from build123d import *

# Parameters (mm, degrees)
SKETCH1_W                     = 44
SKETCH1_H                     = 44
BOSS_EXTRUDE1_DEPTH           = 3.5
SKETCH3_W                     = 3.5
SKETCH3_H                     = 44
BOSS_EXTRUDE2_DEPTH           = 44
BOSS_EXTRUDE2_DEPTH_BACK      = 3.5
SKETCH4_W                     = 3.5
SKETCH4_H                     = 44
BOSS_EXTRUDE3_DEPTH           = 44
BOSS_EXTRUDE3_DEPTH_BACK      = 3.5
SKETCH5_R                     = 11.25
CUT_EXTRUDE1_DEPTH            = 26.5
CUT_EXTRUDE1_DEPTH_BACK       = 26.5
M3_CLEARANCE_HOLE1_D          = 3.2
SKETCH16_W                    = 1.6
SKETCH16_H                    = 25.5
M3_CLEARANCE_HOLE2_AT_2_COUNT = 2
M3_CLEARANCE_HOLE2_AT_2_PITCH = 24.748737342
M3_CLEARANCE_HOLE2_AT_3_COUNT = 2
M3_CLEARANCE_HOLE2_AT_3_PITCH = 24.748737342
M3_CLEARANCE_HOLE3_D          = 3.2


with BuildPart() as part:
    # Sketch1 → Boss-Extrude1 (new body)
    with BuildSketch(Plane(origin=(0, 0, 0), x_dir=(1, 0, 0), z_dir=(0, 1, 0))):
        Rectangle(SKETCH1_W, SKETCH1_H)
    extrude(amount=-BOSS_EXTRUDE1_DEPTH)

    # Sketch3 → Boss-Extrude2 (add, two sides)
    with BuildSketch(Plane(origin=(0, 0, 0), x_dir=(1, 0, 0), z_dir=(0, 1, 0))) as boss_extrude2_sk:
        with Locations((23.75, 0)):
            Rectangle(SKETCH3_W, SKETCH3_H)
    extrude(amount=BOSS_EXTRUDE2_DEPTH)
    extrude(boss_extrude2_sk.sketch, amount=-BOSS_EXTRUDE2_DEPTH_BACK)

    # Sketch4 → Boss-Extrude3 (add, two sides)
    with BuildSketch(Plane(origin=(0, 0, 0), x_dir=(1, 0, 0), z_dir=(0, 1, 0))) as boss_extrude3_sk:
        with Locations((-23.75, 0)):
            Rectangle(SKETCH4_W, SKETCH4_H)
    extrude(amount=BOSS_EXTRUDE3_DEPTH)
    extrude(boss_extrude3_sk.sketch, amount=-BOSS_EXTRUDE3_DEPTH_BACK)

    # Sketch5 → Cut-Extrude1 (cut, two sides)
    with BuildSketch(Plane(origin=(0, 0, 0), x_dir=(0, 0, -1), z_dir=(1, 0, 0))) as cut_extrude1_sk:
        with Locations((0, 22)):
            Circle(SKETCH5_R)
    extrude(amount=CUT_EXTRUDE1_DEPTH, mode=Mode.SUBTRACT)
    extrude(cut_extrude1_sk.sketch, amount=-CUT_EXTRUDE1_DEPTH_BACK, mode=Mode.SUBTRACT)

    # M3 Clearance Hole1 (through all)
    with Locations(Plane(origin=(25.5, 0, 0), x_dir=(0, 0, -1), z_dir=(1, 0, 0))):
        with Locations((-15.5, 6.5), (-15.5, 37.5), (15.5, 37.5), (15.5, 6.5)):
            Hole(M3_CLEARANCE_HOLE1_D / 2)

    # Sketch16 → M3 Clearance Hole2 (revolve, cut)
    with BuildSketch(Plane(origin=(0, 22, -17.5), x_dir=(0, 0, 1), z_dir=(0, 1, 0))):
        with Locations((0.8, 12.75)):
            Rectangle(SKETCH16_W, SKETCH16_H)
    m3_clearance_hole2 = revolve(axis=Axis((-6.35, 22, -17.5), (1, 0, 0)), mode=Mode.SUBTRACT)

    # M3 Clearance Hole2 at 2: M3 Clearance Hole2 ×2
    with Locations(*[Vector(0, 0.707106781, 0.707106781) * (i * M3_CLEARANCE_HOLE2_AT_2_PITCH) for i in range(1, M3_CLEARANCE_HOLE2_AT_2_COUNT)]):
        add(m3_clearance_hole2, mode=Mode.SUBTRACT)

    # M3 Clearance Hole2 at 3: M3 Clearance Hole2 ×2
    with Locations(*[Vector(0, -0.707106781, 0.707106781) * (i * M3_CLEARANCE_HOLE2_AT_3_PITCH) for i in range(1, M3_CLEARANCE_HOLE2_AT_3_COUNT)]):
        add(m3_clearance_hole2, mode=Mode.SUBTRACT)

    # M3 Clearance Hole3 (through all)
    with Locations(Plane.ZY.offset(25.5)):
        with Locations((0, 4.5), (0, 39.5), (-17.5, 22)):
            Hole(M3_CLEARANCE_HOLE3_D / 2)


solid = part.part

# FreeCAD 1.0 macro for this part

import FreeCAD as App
import Part
import Sketcher
from FreeCAD import Vector

doc = App.newDocument("Part")
body = doc.addObject("PartDesign::Body", "Body")

# Sketch on XZ plane
sketch1 = doc.addObject("Sketcher::SketchObject", "Sketch")
body.addObject(sketch1)
sketch1.AttachmentSupport = (doc.XZ_Plane, [""])
sketch1.MapMode = "FlatFace"
sketch1.addGeometry([
    Part.LineSegment(Vector(-22, -22, 0), Vector(-22, 22, 0)),
    Part.LineSegment(Vector(-22, 22, 0), Vector(22, 22, 0)),
    Part.LineSegment(Vector(22, 22, 0), Vector(22, -22, 0)),
    Part.LineSegment(Vector(22, -22, 0), Vector(-22, -22, 0)),
], False)
sketch1.addConstraint([
    Sketcher.Constraint("Coincident", 0, 2, 1, 1),
    Sketcher.Constraint("Coincident", 1, 2, 2, 1),
    Sketcher.Constraint("Coincident", 2, 2, 3, 1),
    Sketcher.Constraint("Coincident", 3, 2, 0, 1),
    Sketcher.Constraint("Vertical", 0),
    Sketcher.Constraint("Horizontal", 1),
    Sketcher.Constraint("Vertical", 2),
    Sketcher.Constraint("Horizontal", 3),
    Sketcher.Constraint("Symmetric", 0, 2, 2, 2, -1, 1),
    Sketcher.Constraint("Equal", 3, 0),
    Sketcher.Constraint("DistanceX", 1, 1, 1, 2, 44.0),
])
pad1 = doc.addObject("PartDesign::Pad", "Pad")
body.addObject(pad1)
pad1.Profile = sketch1
pad1.Length = 3.5

# Sketch on XZ plane
sketch2 = doc.addObject("Sketcher::SketchObject", "Sketch001")
body.addObject(sketch2)
sketch2.AttachmentSupport = (doc.XZ_Plane, [""])
sketch2.MapMode = "FlatFace"
sketch2.addGeometry([
    Part.LineSegment(Vector(22, -22, 0), Vector(22, 22, 0)),
    Part.LineSegment(Vector(22, 22, 0), Vector(25.5, 22, 0)),
    Part.LineSegment(Vector(25.5, 22, 0), Vector(25.5, -22, 0)),
    Part.LineSegment(Vector(25.5, -22, 0), Vector(22, -22, 0)),
], False)
sketch2.addConstraint([
    Sketcher.Constraint("Coincident", 0, 2, 1, 1),
    Sketcher.Constraint("Coincident", 1, 2, 2, 1),
    Sketcher.Constraint("Coincident", 2, 2, 3, 1),
    Sketcher.Constraint("Coincident", 3, 2, 0, 1),
    Sketcher.Constraint("Vertical", 0),
    Sketcher.Constraint("Horizontal", 1),
    Sketcher.Constraint("Vertical", 2),
    Sketcher.Constraint("Horizontal", 3),
    Sketcher.Constraint("DistanceY", 0, 1, 0, 2, 44.0),
    Sketcher.Constraint("DistanceX", 1, 1, 1, 2, 3.5),
    Sketcher.Constraint("DistanceX", -1, 1, 0, 2, 22.0),
    Sketcher.Constraint("DistanceY", -1, 1, 0, 2, 22.0),
])
pad2 = doc.addObject("PartDesign::Pad", "Pad001")
body.addObject(pad2)
pad2.Profile = sketch2
pad2.Type = "TwoLengths"
pad2.Length = 44
pad2.Length2 = 3.5
pad2.Reversed = True

# Sketch on XZ plane
sketch3 = doc.addObject("Sketcher::SketchObject", "Sketch002")
body.addObject(sketch3)
sketch3.AttachmentSupport = (doc.XZ_Plane, [""])
sketch3.MapMode = "FlatFace"
sketch3.addGeometry([
    Part.LineSegment(Vector(-25.5, -22, 0), Vector(-25.5, 22, 0)),
    Part.LineSegment(Vector(-25.5, 22, 0), Vector(-22, 22, 0)),
    Part.LineSegment(Vector(-22, 22, 0), Vector(-22, -22, 0)),
    Part.LineSegment(Vector(-22, -22, 0), Vector(-25.5, -22, 0)),
], False)
sketch3.addConstraint([
    Sketcher.Constraint("Coincident", 0, 2, 1, 1),
    Sketcher.Constraint("Coincident", 1, 2, 2, 1),
    Sketcher.Constraint("Coincident", 2, 2, 3, 1),
    Sketcher.Constraint("Coincident", 3, 2, 0, 1),
    Sketcher.Constraint("Vertical", 0),
    Sketcher.Constraint("Horizontal", 1),
    Sketcher.Constraint("Vertical", 2),
    Sketcher.Constraint("Horizontal", 3),
    Sketcher.Constraint("DistanceY", 0, 1, 0, 2, 44.0),
    Sketcher.Constraint("DistanceX", 1, 1, 1, 2, 3.5),
    Sketcher.Constraint("DistanceY", -1, 1, 0, 2, 22.0),
    Sketcher.Constraint("DistanceX", 1, 2, -1, 1, 22.0),
])
pad3 = doc.addObject("PartDesign::Pad", "Pad002")
body.addObject(pad3)
pad3.Profile = sketch3
pad3.Type = "TwoLengths"
pad3.Length = 44
pad3.Length2 = 3.5
pad3.Reversed = True

# Sketch on YZ plane
sketch4 = doc.addObject("Sketcher::SketchObject", "Sketch003")
body.addObject(sketch4)
sketch4.AttachmentSupport = (doc.YZ_Plane, [""])
sketch4.MapMode = "FlatFace"
sketch4.addGeometry(Part.Circle(Vector(22, 0, 0), Vector(0, 0, 1), 11), False)
sketch4.addConstraint([
    Sketcher.Constraint("PointOnObject", 0, 3, -1),
    Sketcher.Constraint("Diameter", 0, 22.5),
    Sketcher.Constraint("DistanceX", -1, 1, 0, 3, 22.0),
])
pocket1 = doc.addObject("PartDesign::Pocket", "Pocket")
body.addObject(pocket1)
pocket1.Profile = sketch4
pocket1.Type = "ThroughAll"
pocket1.Midplane = True

# Sketch on YZ plane
sketch5 = doc.addObject("Sketcher::SketchObject", "Sketch004")
body.addObject(sketch5)
sketch5.AttachmentSupport = (doc.YZ_Plane, [""])
sketch5.MapMode = "FlatFace"
sketch5.AttachmentOffset = App.Placement(Vector(0, 0, 25.5), App.Rotation())
sketch5.addGeometry([
    Part.Circle(Vector(6.5, 15.5, 0), Vector(0, 0, 1), 1.6),
    Part.Circle(Vector(37.5, 15.5, 0), Vector(0, 0, 1), 1.6),
    Part.Circle(Vector(37.5, -15.5, 0), Vector(0, 0, 1), 1.6),
    Part.Circle(Vector(6.5, -15.5, 0), Vector(0, 0, 1), 1.6),
], False)
sketch5.addConstraint([
    Sketcher.Constraint("Equal", 0, 1),
    Sketcher.Constraint("Equal", 1, 2),
    Sketcher.Constraint("Equal", 2, 3),
    Sketcher.Constraint("Symmetric", 1, 3, 2, 3, -1),
    Sketcher.Constraint("Symmetric", 0, 3, 3, 3, -1),
    Sketcher.Constraint("Horizontal", 0, 3, 1, 3),
    Sketcher.Constraint("Diameter", 0, 3.2),
    Sketcher.Constraint("DistanceX", 0, 3, 1, 3, 31.0),
    Sketcher.Constraint("DistanceY", 2, 3, 1, 3, 31.0),
    Sketcher.Constraint("DistanceX", -1, 1, 0, 3, 6.5),
])
doc.recompute()
hole = doc.addObject("PartDesign::Hole", "Hole")
body.addObject(hole)
hole.Profile = sketch5
hole.ThreadType = "None"
hole.Diameter = 3.2
hole.DepthType = "ThroughAll"

# Sketch on XZ plane
sketch6 = doc.addObject("Sketcher::SketchObject", "Sketch005")
body.addObject(sketch6)
sketch6.AttachmentSupport = (doc.XZ_Plane, [""])
sketch6.MapMode = "FlatFace"
sketch6.AttachmentOffset = App.Placement(Vector(0, 0, -22), App.Rotation())
sketch6.addGeometry([
    Part.LineSegment(Vector(25.5, -17.5, 0), Vector(0, -17.5, 0)),
    Part.LineSegment(Vector(0, -17.5, 0), Vector(0, -15.9, 0)),
    Part.LineSegment(Vector(0, -15.9, 0), Vector(25.5, -15.9, 0)),
    Part.LineSegment(Vector(25.5, -15.9, 0), Vector(25.5, -17.5, 0)),
], False)
sketch6.addGeometry(Part.LineSegment(Vector(0, -17.5, 0), Vector(25.5, -17.5, 0)), True)  # axis
sketch6.addConstraint([
    Sketcher.Constraint("Coincident", 0, 2, 1, 1),
    Sketcher.Constraint("Coincident", 1, 2, 2, 1),
    Sketcher.Constraint("Coincident", 2, 2, 3, 1),
    Sketcher.Constraint("Coincident", 3, 2, 0, 1),
    Sketcher.Constraint("Horizontal", 0),
    Sketcher.Constraint("Vertical", 1),
    Sketcher.Constraint("Horizontal", 2),
    Sketcher.Constraint("Vertical", 3),
    Sketcher.Constraint("Horizontal", 4),
    Sketcher.Constraint("Coincident", 4, 1, 0, 2),
    Sketcher.Constraint("PointOnObject", 0, 2, -2),
    Sketcher.Constraint("Vertical", 2, 2, 4, 2),
    Sketcher.Constraint("DistanceX", 0, 2, 0, 1, 25.5),
    Sketcher.Constraint("DistanceY", 1, 1, 1, 2, 1.6),
    Sketcher.Constraint("DistanceY", 0, 2, -1, 1, 17.5),
])
groove = doc.addObject("PartDesign::Groove", "Groove")
body.addObject(groove)
groove.Profile = sketch6
groove.ReferenceAxis = (sketch6, ["Axis0"])
groove.Angle = 360
doc.recompute()

datumline = doc.addObject("PartDesign::Line", "DatumLine")
body.addObject(datumline)
datumline.Placement = App.Placement(Vector(0, 0, 0), App.Rotation(Vector(0, 0, 1), Vector(0, 0.707106781, 0.707106781)))
linearpattern = doc.addObject("PartDesign::LinearPattern", "LinearPattern")
body.addObject(linearpattern)
linearpattern.Originals = [groove]
linearpattern.Direction = (datumline, [""])
linearpattern.Mode = "offset"
linearpattern.Offset = 24.748737
linearpattern.Occurrences = 2
body.Tip = linearpattern
doc.recompute()

datumline2 = doc.addObject("PartDesign::Line", "DatumLine001")
body.addObject(datumline2)
datumline2.Placement = App.Placement(Vector(0, 0, 0), App.Rotation(Vector(0, 0, 1), Vector(0, -0.707106781, 0.707106781)))
linearpattern2 = doc.addObject("PartDesign::LinearPattern", "LinearPattern001")
body.addObject(linearpattern2)
linearpattern2.Originals = [groove]
linearpattern2.Direction = (datumline2, [""])
linearpattern2.Mode = "offset"
linearpattern2.Offset = 24.748737
linearpattern2.Occurrences = 2
body.Tip = linearpattern2

# Sketch on YZ plane
sketch7 = doc.addObject("Sketcher::SketchObject", "Sketch006")
body.addObject(sketch7)
sketch7.AttachmentSupport = (doc.YZ_Plane, [""])
sketch7.MapMode = "FlatFace"
sketch7.AttachmentOffset = App.Placement(Vector(0, 0, -25.5), App.Rotation())
sketch7.addGeometry([
    Part.Circle(Vector(4.5, 0, 0), Vector(0, 0, 1), 1.6),
    Part.Circle(Vector(39.5, 0, 0), Vector(0, 0, 1), 1.6),
    Part.Circle(Vector(22, -17.5, 0), Vector(0, 0, 1), 1.6),
], False)
sketch7.addConstraint([
    Sketcher.Constraint("Equal", 0, 1),
    Sketcher.Constraint("Equal", 1, 2),
    Sketcher.Constraint("PointOnObject", 0, 3, -1),
    Sketcher.Constraint("PointOnObject", 1, 3, -1),
    Sketcher.Constraint("Diameter", 0, 3.2),
    Sketcher.Constraint("DistanceX", -1, 1, 2, 3, 22.0),
    Sketcher.Constraint("DistanceX", 0, 3, 1, 3, 35.0),
    Sketcher.Constraint("DistanceX", -1, 1, 0, 3, 4.5),
    Sketcher.Constraint("DistanceY", 2, 3, -1, 1, 17.5),
])
doc.recompute()
hole2 = doc.addObject("PartDesign::Hole", "Hole001")
body.addObject(hole2)
hole2.Profile = sketch7
hole2.ThreadType = "None"
hole2.Diameter = 3.2
hole2.DepthType = "ThroughAll"
hole2.Reversed = True

doc.recompute()
